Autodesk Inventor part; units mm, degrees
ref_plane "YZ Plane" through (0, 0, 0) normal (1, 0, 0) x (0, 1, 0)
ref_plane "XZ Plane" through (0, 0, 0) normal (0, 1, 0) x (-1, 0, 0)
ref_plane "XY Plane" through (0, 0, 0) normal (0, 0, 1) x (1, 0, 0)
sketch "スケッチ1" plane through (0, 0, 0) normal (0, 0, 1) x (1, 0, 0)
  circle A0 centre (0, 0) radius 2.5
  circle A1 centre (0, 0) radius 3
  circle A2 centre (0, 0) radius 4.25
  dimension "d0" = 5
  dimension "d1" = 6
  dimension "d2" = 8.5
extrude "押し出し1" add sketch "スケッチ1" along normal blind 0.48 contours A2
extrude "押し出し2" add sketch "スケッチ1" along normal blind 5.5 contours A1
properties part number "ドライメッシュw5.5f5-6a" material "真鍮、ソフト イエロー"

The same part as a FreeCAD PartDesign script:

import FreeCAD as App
import Part
import Sketcher
from FreeCAD import Vector

doc = App.newDocument("Part")
body = doc.addObject("PartDesign::Body", "Body")

# Sketch on XY plane
sketch1 = doc.addObject("Sketcher::SketchObject", "Sketch")
body.addObject(sketch1)
sketch1.AttachmentSupport = (doc.XY_Plane, [""])
sketch1.MapMode = "FlatFace"
sketch1.addGeometry(Part.Circle(Vector(0, 0, 0), Vector(0, 0, 1), 4.2), False)
sketch1.addGeometry(Part.Circle(Vector(0, 0, 0), Vector(0, 0, 1), 3), False)
sketch1.addConstraint(Sketcher.Constraint("Coincident", 0, 3, -1, 1))
sketch1.addConstraint(Sketcher.Constraint("Coincident", 1, 3, -1, 1))
sketch1.addConstraint(Sketcher.Constraint("Diameter", 1, 6.0))
sketch1.addConstraint(Sketcher.Constraint("Diameter", 0, 8.5))
pad1 = doc.addObject("PartDesign::Pad", "Pad")
body.addObject(pad1)
pad1.Profile = sketch1
pad1.Length = 0.48

# Sketch on XY plane
sketch2 = doc.addObject("Sketcher::SketchObject", "Sketch001")
body.addObject(sketch2)
sketch2.AttachmentSupport = (doc.XY_Plane, [""])
sketch2.MapMode = "FlatFace"
sketch2.addGeometry(Part.Circle(Vector(0, 0, 0), Vector(0, 0, 1), 3), False)
sketch2.addGeometry(Part.Circle(Vector(0, 0, 0), Vector(0, 0, 1), 2.5), False)
sketch2.addConstraint(Sketcher.Constraint("Coincident", 0, 3, -1, 1))
sketch2.addConstraint(Sketcher.Constraint("Coincident", 1, 3, -1, 1))
sketch2.addConstraint(Sketcher.Constraint("Diameter", 0, 6.0))
sketch2.addConstraint(Sketcher.Constraint("Diameter", 1, 5.0))
pad2 = doc.addObject("PartDesign::Pad", "Pad001")
body.addObject(pad2)
pad2.Profile = sketch2
pad2.Length = 5.5

doc.recompute()
